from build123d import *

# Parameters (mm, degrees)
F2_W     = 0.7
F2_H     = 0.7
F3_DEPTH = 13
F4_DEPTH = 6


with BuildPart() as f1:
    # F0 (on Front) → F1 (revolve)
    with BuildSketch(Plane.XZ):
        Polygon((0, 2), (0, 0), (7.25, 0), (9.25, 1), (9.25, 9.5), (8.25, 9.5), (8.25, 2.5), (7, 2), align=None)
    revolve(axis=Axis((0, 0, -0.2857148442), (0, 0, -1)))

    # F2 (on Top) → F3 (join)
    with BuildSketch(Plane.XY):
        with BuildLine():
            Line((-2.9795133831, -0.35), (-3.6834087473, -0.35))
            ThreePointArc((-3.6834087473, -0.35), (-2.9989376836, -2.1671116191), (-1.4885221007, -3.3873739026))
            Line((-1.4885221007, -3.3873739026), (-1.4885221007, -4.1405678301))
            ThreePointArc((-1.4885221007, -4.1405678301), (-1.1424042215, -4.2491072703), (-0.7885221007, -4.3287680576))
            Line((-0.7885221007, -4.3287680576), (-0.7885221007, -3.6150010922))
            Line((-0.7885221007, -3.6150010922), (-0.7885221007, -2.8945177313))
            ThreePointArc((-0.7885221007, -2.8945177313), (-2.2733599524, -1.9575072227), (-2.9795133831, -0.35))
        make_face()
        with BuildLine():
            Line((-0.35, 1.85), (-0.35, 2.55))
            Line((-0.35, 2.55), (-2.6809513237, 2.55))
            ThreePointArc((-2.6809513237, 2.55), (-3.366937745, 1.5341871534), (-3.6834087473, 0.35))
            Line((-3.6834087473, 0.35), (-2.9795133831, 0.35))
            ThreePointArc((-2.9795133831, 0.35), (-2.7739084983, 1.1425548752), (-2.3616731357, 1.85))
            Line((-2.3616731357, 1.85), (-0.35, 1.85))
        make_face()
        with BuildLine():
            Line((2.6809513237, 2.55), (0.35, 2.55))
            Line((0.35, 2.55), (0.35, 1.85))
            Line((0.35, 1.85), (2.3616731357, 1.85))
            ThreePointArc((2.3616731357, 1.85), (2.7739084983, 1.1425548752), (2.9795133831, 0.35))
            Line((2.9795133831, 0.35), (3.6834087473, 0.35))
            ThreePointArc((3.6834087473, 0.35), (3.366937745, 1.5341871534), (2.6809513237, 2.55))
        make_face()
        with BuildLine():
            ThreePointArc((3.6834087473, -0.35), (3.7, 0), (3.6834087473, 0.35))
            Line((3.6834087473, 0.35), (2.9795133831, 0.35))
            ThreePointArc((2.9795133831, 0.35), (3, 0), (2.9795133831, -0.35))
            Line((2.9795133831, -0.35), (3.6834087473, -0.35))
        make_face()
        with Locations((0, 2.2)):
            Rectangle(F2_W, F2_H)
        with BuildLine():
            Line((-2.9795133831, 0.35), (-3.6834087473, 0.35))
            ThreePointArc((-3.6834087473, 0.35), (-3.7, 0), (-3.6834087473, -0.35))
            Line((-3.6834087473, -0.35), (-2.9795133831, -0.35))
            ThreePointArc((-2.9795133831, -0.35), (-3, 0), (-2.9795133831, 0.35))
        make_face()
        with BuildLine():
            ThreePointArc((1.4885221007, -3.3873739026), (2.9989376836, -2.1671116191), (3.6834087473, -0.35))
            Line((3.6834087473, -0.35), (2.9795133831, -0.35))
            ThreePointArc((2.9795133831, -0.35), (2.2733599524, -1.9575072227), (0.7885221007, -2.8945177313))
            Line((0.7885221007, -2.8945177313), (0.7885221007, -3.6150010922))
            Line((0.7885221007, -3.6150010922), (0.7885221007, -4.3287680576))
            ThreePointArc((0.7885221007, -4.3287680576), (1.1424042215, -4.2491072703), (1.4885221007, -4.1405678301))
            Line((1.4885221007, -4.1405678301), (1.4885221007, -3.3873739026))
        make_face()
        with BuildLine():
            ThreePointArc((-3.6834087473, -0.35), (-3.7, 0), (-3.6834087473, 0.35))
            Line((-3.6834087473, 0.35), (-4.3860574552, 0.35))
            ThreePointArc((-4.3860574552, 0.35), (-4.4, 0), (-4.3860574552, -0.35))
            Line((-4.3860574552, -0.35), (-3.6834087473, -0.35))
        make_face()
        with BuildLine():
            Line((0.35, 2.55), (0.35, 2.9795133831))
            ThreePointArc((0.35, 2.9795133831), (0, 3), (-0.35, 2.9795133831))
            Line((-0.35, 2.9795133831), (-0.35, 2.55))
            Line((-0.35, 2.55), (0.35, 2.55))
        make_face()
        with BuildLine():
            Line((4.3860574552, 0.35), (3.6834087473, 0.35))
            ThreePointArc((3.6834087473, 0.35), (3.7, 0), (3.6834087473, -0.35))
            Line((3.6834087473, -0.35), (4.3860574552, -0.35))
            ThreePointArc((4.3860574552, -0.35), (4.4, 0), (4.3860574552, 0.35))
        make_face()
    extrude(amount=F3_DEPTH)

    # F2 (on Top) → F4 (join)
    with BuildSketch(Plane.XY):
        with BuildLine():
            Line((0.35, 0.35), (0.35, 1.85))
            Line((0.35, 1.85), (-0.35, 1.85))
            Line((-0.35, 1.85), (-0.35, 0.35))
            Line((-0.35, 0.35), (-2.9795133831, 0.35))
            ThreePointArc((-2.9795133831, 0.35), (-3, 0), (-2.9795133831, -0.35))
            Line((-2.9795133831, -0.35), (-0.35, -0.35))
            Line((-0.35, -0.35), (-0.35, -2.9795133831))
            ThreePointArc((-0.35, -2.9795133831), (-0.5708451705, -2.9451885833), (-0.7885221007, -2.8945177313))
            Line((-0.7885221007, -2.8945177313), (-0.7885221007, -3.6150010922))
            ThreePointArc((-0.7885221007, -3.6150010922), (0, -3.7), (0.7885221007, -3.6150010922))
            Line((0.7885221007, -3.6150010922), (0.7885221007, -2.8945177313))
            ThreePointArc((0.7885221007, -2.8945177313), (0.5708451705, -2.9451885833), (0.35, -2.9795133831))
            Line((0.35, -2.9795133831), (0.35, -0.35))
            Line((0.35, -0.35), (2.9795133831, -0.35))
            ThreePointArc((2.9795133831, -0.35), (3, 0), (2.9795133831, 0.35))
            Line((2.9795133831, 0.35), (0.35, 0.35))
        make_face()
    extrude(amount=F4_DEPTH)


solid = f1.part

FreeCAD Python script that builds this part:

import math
import FreeCAD as App
import Part
import Sketcher

doc = App.newDocument("Part")
params = doc.addObject("Spreadsheet::Sheet", "Params")
for row, (alias, value) in enumerate([
    ("sketch1_width", "1 mm"),
    ("sketch1_width2", "7 mm"),
    ("sketch1_height", "2 mm"),
    ("sketch1_height2", "8.5 mm"),
    ("sketch1_width3", "7.25 mm"),
    ("revolution_angle", "360 deg"),
    ("sketch2_radius", "3 mm"),
    ("sketch2_radius2", "3.7 mm"),
    ("sketch2_radius3", "4.4 mm"),
    ("pad1_length", "13 mm"),
    ("sketch3_radius", "3 mm"),
    ("sketch3_radius2", "3.7 mm"),
    ("sketch3_width", "0.7 mm"),
    ("sketch3_height", "1.5 mm"),
    ("pad2_length", "6 mm"),
], start=1):
    params.set(f"A{row}", alias)
    params.set(f"B{row}", "=" + value)
    params.setAlias(f"B{row}", alias)

body = doc.addObject("PartDesign::Body", "Body")

sketch1 = body.newObject("Sketcher::SketchObject", "Sketch")
sketch1.AttachmentSupport = (doc.getObject("XZ_Plane"), [""])
sketch1.MapMode = "FlatFace"
sketch1.addGeometry([
    Part.LineSegment(App.Vector(0, 2, 0), App.Vector(0, 0, 0)),
    Part.LineSegment(App.Vector(0, 0, 0), App.Vector(7.2, 0, 0)),
    Part.LineSegment(App.Vector(7.2, 0, 0), App.Vector(9.2, 1, 0)),
    Part.LineSegment(App.Vector(9.2, 1, 0), App.Vector(9.2, 9.5, 0)),
    Part.LineSegment(App.Vector(9.2, 9.5, 0), App.Vector(8.2, 9.5, 0)),
    Part.LineSegment(App.Vector(8.2, 9.5, 0), App.Vector(8.2, 2.5, 0)),
    Part.LineSegment(App.Vector(8.2, 2.5, 0), App.Vector(7, 2, 0)),
    Part.LineSegment(App.Vector(7, 2, 0), App.Vector(0, 2, 0)),
], False)
sketch1.addConstraint([
    Sketcher.Constraint("Coincident", 0, 2, 1, 1),
    Sketcher.Constraint("Coincident", 1, 2, 2, 1),
    Sketcher.Constraint("Coincident", 2, 2, 3, 1),
    Sketcher.Constraint("Coincident", 3, 2, 4, 1),
    Sketcher.Constraint("Coincident", 4, 2, 5, 1),
    Sketcher.Constraint("Coincident", 5, 2, 6, 1),
    Sketcher.Constraint("Coincident", 6, 2, 7, 1),
    Sketcher.Constraint("Coincident", 7, 2, 0, 1),
    Sketcher.Constraint("Vertical", 0),
    Sketcher.Constraint("Horizontal", 1),
    Sketcher.Constraint("Vertical", 3),
    Sketcher.Constraint("Horizontal", 4),
    Sketcher.Constraint("Vertical", 5),
    Sketcher.Constraint("Horizontal", 7),
    Sketcher.Constraint("Coincident", 0, 2, -1, 1),
    Sketcher.Constraint("Equal", 7, 5),
    Sketcher.Constraint("DistanceX", 4, 2, 4, 1, 1.0),
    Sketcher.Constraint("DistanceX", 7, 2, 7, 1, 7.0),
    Sketcher.Constraint("DistanceY", 0, 2, 0, 1, 2.0),
    Sketcher.Constraint("DistanceY", 3, 1, 3, 2, 8.5),
    Sketcher.Constraint("DistanceY", -1, 1, 2, 2, 1.0),
    Sketcher.Constraint("DistanceX", 1, 2, 2, 2, 2.0),
    Sketcher.Constraint("DistanceX", 1, 1, 1, 2, 7.25),
])
sketch1.setExpression("Constraints[16]", "Params.sketch1_width")
sketch1.setExpression("Constraints[17]", "Params.sketch1_width2")
sketch1.setExpression("Constraints[18]", "Params.sketch1_height")
sketch1.setExpression("Constraints[19]", "Params.sketch1_height2")
sketch1.setExpression("Constraints[22]", "Params.sketch1_width3")
revolution = body.newObject("PartDesign::Revolution", "Revolution")
revolution.Profile = sketch1
revolution.ReferenceAxis = (sketch1, ["V_Axis"])
revolution.setExpression("Angle", "Params.revolution_angle")

sketch2 = body.newObject("Sketcher::SketchObject", "Sketch001")
sketch2.AttachmentSupport = (doc.getObject("XY_Plane"), [""])
sketch2.MapMode = "FlatFace"
sketch2.addGeometry([
    Part.ArcOfCircle(Part.Circle(App.Vector(0, 0, 0), App.Vector(0, 0, 1), 3.7), math.radians(-175), math.radians(-114)),
    Part.LineSegment(App.Vector(-1.49, -3.39, 0), App.Vector(-1.49, -4.14, 0)),
    Part.ArcOfCircle(Part.Circle(App.Vector(0, 0, 0), App.Vector(0, 0, 1), 4.4), math.radians(-109.77), math.radians(-100.32)),
    Part.LineSegment(App.Vector(-0.79, -4.33, 0), App.Vector(-0.79, -2.89, 0)),
    Part.ArcOfCircle(Part.Circle(App.Vector(0, 0, 0), App.Vector(0, 0, 1), 3), math.radians(-173), math.radians(-105)),
    Part.ArcOfCircle(Part.Circle(App.Vector(0, 0, 0), App.Vector(0, 0, 1), 3), math.radians(173.3), math.radians(186.7)),
    Part.ArcOfCircle(Part.Circle(App.Vector(0, 0, 0), App.Vector(0, 0, 1), 3), math.radians(142), math.radians(173)),
    Part.LineSegment(App.Vector(-2.36, 1.85, 0), App.Vector(2.36, 1.85, 0)),
    Part.ArcOfCircle(Part.Circle(App.Vector(0, 0, 0), App.Vector(0, 0, 1), 3), math.radians(7), math.radians(38)),
    Part.ArcOfCircle(Part.Circle(App.Vector(0, 0, 0), App.Vector(0, 0, 1), 3), math.radians(-6.7), math.radians(6.7)),
    Part.ArcOfCircle(Part.Circle(App.Vector(0, 0, 0), App.Vector(0, 0, 1), 3), math.radians(-75), math.radians(-7)),
    Part.LineSegment(App.Vector(0.79, -2.89, 0), App.Vector(0.79, -4.33, 0)),
    Part.ArcOfCircle(Part.Circle(App.Vector(0, 0, 0), App.Vector(0, 0, 1), 4.4), math.radians(-79.68), math.radians(-70.23)),
    Part.LineSegment(App.Vector(1.49, -4.14, 0), App.Vector(1.49, -3.39, 0)),
    Part.ArcOfCircle(Part.Circle(App.Vector(0, 0, 0), App.Vector(0, 0, 1), 3.7), math.radians(-66), math.radians(-5)),
    Part.LineSegment(App.Vector(3.68, -0.35, 0), App.Vector(4.39, -0.35, 0)),
    Part.ArcOfCircle(Part.Circle(App.Vector(0, 0, 0), App.Vector(0, 0, 1), 4.4), math.radians(-4.56), math.radians(4.56)),
    Part.LineSegment(App.Vector(4.39, 0.35, 0), App.Vector(3.68, 0.35, 0)),
    Part.ArcOfCircle(Part.Circle(App.Vector(0, 0, 0), App.Vector(0, 0, 1), 3.7), math.radians(5), math.radians(44)),
    Part.LineSegment(App.Vector(2.68, 2.55, 0), App.Vector(0.35, 2.55, 0)),
    Part.LineSegment(App.Vector(0.35, 2.55, 0), App.Vector(0.35, 2.98, 0)),
    Part.ArcOfCircle(Part.Circle(App.Vector(0, 0, 0), App.Vector(0, 0, 1), 3), math.radians(83.3), math.radians(96.7)),
    Part.LineSegment(App.Vector(-0.35, 2.98, 0), App.Vector(-0.35, 2.55, 0)),
    Part.LineSegment(App.Vector(-0.35, 2.55, 0), App.Vector(-2.68, 2.55, 0)),
    Part.ArcOfCircle(Part.Circle(App.Vector(0, 0, 0), App.Vector(0, 0, 1), 3.7), math.radians(136), math.radians(175)),
    Part.LineSegment(App.Vector(-3.68, 0.35, 0), App.Vector(-4.39, 0.35, 0)),
    Part.ArcOfCircle(Part.Circle(App.Vector(0, 0, 0), App.Vector(0, 0, 1), 4.4), math.radians(175.44), math.radians(184.56)),
    Part.LineSegment(App.Vector(-4.39, -0.35, 0), App.Vector(-3.68, -0.35, 0)),
], False)
sketch2.addConstraint([
    Sketcher.Constraint("Coincident", 0, 2, 1, 1),
    Sketcher.Constraint("Coincident", 1, 2, 2, 1),
    Sketcher.Constraint("Coincident", 2, 2, 3, 1),
    Sketcher.Constraint("Coincident", 3, 2, 4, 2),
    Sketcher.Constraint("Tangent", 4, 1, 5, 2),
    Sketcher.Constraint("Tangent", 5, 1, 6, 2),
    Sketcher.Constraint("Coincident", 6, 1, 7, 1),
    Sketcher.Constraint("Coincident", 7, 2, 8, 2),
    Sketcher.Constraint("Tangent", 8, 1, 9, 2),
    Sketcher.Constraint("Tangent", 9, 1, 10, 2),
    Sketcher.Constraint("Coincident", 10, 1, 11, 1),
    Sketcher.Constraint("Coincident", 11, 2, 12, 1),
    Sketcher.Constraint("Coincident", 12, 2, 13, 1),
    Sketcher.Constraint("Coincident", 13, 2, 14, 1),
    Sketcher.Constraint("Coincident", 14, 2, 15, 1),
    Sketcher.Constraint("Coincident", 15, 2, 16, 1),
    Sketcher.Constraint("Coincident", 16, 2, 17, 1),
    Sketcher.Constraint("Coincident", 17, 2, 18, 1),
    Sketcher.Constraint("Coincident", 18, 2, 19, 1),
    Sketcher.Constraint("Coincident", 19, 2, 20, 1),
    Sketcher.Constraint("Coincident", 20, 2, 21, 1),
    Sketcher.Constraint("Coincident", 21, 2, 22, 1),
    Sketcher.Constraint("Coincident", 22, 2, 23, 1),
    Sketcher.Constraint("Coincident", 23, 2, 24, 1),
    Sketcher.Constraint("Coincident", 24, 2, 25, 1),
    Sketcher.Constraint("Coincident", 25, 2, 26, 1),
    Sketcher.Constraint("Coincident", 26, 2, 27, 1),
    Sketcher.Constraint("Coincident", 27, 2, 0, 1),
    Sketcher.Constraint("Vertical", 1),
    Sketcher.Constraint("Vertical", 3),
    Sketcher.Constraint("Horizontal", 7),
    Sketcher.Constraint("Vertical", 11),
    Sketcher.Constraint("Vertical", 13),
    Sketcher.Constraint("Horizontal", 15),
    Sketcher.Constraint("Horizontal", 17),
    Sketcher.Constraint("Horizontal", 19),
    Sketcher.Constraint("Vertical", 20),
    Sketcher.Constraint("Vertical", 22),
    Sketcher.Constraint("Horizontal", 23),
    Sketcher.Constraint("Horizontal", 25),
    Sketcher.Constraint("Horizontal", 27),
    Sketcher.Constraint("Coincident", 0, 3, -1, 1),
    Sketcher.Constraint("Coincident", 2, 3, -1, 1),
    Sketcher.Constraint("Coincident", 4, 3, -1, 1),
    Sketcher.Constraint("Coincident", 6, 3, -1, 1),
    Sketcher.Constraint("Coincident", 8, 3, -1, 1),
    Sketcher.Constraint("Coincident", 10, 3, -1, 1),
    Sketcher.Constraint("Coincident", 12, 3, -1, 1),
    Sketcher.Constraint("Coincident", 14, 3, -1, 1),
    Sketcher.Constraint("Coincident", 16, 3, -1, 1),
    Sketcher.Constraint("Coincident", 18, 3, -1, 1),
    Sketcher.Constraint("Coincident", 21, 3, -1, 1),
    Sketcher.Constraint("Coincident", 24, 3, -1, 1),
    Sketcher.Constraint("Coincident", 26, 3, -1, 1),
    Sketcher.Constraint("Equal", 6, 8),
    Sketcher.Constraint("Equal", 2, 12),
    Sketcher.Constraint("Equal", 0, 14),
    Sketcher.Constraint("Equal", 12, 16),
    Sketcher.Constraint("Equal", 14, 18),
    Sketcher.Constraint("Equal", 10, 21),
    Sketcher.Constraint("Equal", 18, 24),
    Sketcher.Constraint("Equal", 16, 26),
    Sketcher.Constraint("Symmetric", 19, 2, 22, 2, -2),
    Sketcher.Constraint("Horizontal", 5, 1, 8, 1),
    Sketcher.Constraint("Horizontal", 4, 1, 9, 1),
    Sketcher.Constraint("Horizontal", 3, 2, 10, 1),
    Sketcher.Constraint("Horizontal", 1, 2, 12, 2),
    Sketcher.Constraint("Horizontal", 9, 1, 14, 2),
    Sketcher.Constraint("Horizontal", 8, 1, 16, 2),
    Sketcher.Constraint("Horizontal", 17, 2, 24, 2),
    Sketcher.Constraint("Horizontal", 15, 2, 26, 2),
    Sketcher.Constraint("Vertical", 4, 1, 5, 1),
    Sketcher.Constraint("Radius", 4, 3.0),
    Sketcher.Constraint("Radius", 0, 3.7),
    Sketcher.Constraint("Radius", 2, 4.4),
    Sketcher.Constraint("DistanceX", 1, 2, 2, 2, 0.7),
    Sketcher.Constraint("DistanceY", 4, 1, 5, 1, 0.7),
    Sketcher.Constraint("DistanceY", 5, 1, 6, 1, 1.5),
    Sketcher.Constraint("DistanceY", 7, 2, 18, 2, 0.7),
    Sketcher.Constraint("DistanceX", 21, 2, 20, 2, 0.7),
    Sketcher.Constraint("DistanceY", 3, 1, 3, 2, 1.43425),
])
sketch2.setExpression("Constraints[72]", "Params.sketch2_radius")
sketch2.setExpression("Constraints[73]", "Params.sketch2_radius2")
sketch2.setExpression("Constraints[74]", "Params.sketch2_radius3")
pad1 = body.newObject("PartDesign::Pad", "Pad")
pad1.Profile = sketch2
pad1.setExpression("Length", "Params.pad1_length")

sketch3 = body.newObject("Sketcher::SketchObject", "Sketch002")
sketch3.AttachmentSupport = (doc.getObject("XY_Plane"), [""])
sketch3.MapMode = "FlatFace"
sketch3.addGeometry([
    Part.LineSegment(App.Vector(0.35, 0.35, 0), App.Vector(0.35, 1.85, 0)),
    Part.LineSegment(App.Vector(0.35, 1.85, 0), App.Vector(-0.35, 1.85, 0)),
    Part.LineSegment(App.Vector(-0.35, 1.85, 0), App.Vector(-0.35, 0.35, 0)),
    Part.LineSegment(App.Vector(-0.35, 0.35, 0), App.Vector(-2.98, 0.35, 0)),
    Part.ArcOfCircle(Part.Circle(App.Vector(0, 0, 0), App.Vector(0, 0, 1), 3), math.radians(173.3), math.radians(186.7)),
    Part.LineSegment(App.Vector(-2.98, -0.35, 0), App.Vector(-0.35, -0.35, 0)),
    Part.LineSegment(App.Vector(-0.35, -0.35, 0), App.Vector(-0.35, -2.98, 0)),
    Part.ArcOfCircle(Part.Circle(App.Vector(0, 0, 0), App.Vector(0, 0, 1), 3), math.radians(-105.24), math.radians(-96.7)),
    Part.LineSegment(App.Vector(-0.79, -2.89, 0), App.Vector(-0.79, -3.62, 0)),
    Part.ArcOfCircle(Part.Circle(App.Vector(0, 0, 0), App.Vector(0, 0, 1), 3.7), math.radians(-102), math.radians(-78)),
    Part.LineSegment(App.Vector(0.79, -3.62, 0), App.Vector(0.79, -2.89, 0)),
    Part.ArcOfCircle(Part.Circle(App.Vector(0, 0, 0), App.Vector(0, 0, 1), 3), math.radians(-83.3), math.radians(-74.76)),
    Part.LineSegment(App.Vector(0.35, -2.98, 0), App.Vector(0.35, -0.35, 0)),
    Part.LineSegment(App.Vector(0.35, -0.35, 0), App.Vector(2.98, -0.35, 0)),
    Part.ArcOfCircle(Part.Circle(App.Vector(0, 0, 0), App.Vector(0, 0, 1), 3), math.radians(-6.7), math.radians(6.7)),
    Part.LineSegment(App.Vector(2.98, 0.35, 0), App.Vector(0.35, 0.35, 0)),
], False)
sketch3.addConstraint([
    Sketcher.Constraint("Coincident", 0, 2, 1, 1),
    Sketcher.Constraint("Coincident", 1, 2, 2, 1),
    Sketcher.Constraint("Coincident", 2, 2, 3, 1),
    Sketcher.Constraint("Coincident", 3, 2, 4, 1),
    Sketcher.Constraint("Coincident", 4, 2, 5, 1),
    Sketcher.Constraint("Coincident", 5, 2, 6, 1),
    Sketcher.Constraint("Coincident", 6, 2, 7, 2),
    Sketcher.Constraint("Coincident", 7, 1, 8, 1),
    Sketcher.Constraint("Coincident", 8, 2, 9, 1),
    Sketcher.Constraint("Coincident", 9, 2, 10, 1),
    Sketcher.Constraint("Coincident", 10, 2, 11, 2),
    Sketcher.Constraint("Coincident", 11, 1, 12, 1),
    Sketcher.Constraint("Coincident", 12, 2, 13, 1),
    Sketcher.Constraint("Coincident", 13, 2, 14, 1),
    Sketcher.Constraint("Coincident", 14, 2, 15, 1),
    Sketcher.Constraint("Coincident", 15, 2, 0, 1),
    Sketcher.Constraint("Vertical", 0),
    Sketcher.Constraint("Horizontal", 1),
    Sketcher.Constraint("Vertical", 2),
    Sketcher.Constraint("Horizontal", 3),
    Sketcher.Constraint("Horizontal", 5),
    Sketcher.Constraint("Vertical", 6),
    Sketcher.Constraint("Vertical", 8),
    Sketcher.Constraint("Vertical", 10),
    Sketcher.Constraint("Vertical", 12),
    Sketcher.Constraint("Horizontal", 13),
    Sketcher.Constraint("Horizontal", 15),
    Sketcher.Constraint("Coincident", 4, 3, -1, 1),
    Sketcher.Constraint("Coincident", 7, 3, -1, 1),
    Sketcher.Constraint("Coincident", 9, 3, -1, 1),
    Sketcher.Constraint("Coincident", 11, 3, -1, 1),
    Sketcher.Constraint("Coincident", 14, 3, -1, 1),
    Sketcher.Constraint("Equal", 4, 7),
    Sketcher.Constraint("Equal", 7, 11),
    Sketcher.Constraint("Equal", 11, 14),
    Sketcher.Constraint("Symmetric", 2, 2, 12, 2, -1, 1),
    Sketcher.Constraint("Symmetric", 5, 2, 15, 2, -1, 1),
    Sketcher.Constraint("Symmetric", 5, 2, 12, 2, -2),
    Sketcher.Constraint("Horizontal", 8, 2, 9, 2),
    Sketcher.Constraint("Equal", 15, 6),
    Sketcher.Constraint("Radius", 4, 3.0),
    Sketcher.Constraint("Radius", 9, 3.7),
    Sketcher.Constraint("DistanceX", 1, 2, 1, 1, 0.7),
    Sketcher.Constraint("DistanceY", 0, 1, 0, 2, 1.5),
    Sketcher.Constraint("DistanceY", 8, 2, -1, 1, 3.615001),
])
sketch3.setExpression("Constraints[40]", "Params.sketch3_radius")
sketch3.setExpression("Constraints[41]", "Params.sketch3_radius2")
sketch3.setExpression("Constraints[42]", "Params.sketch3_width")
sketch3.setExpression("Constraints[43]", "Params.sketch3_height")
pad2 = body.newObject("PartDesign::Pad", "Pad001")
pad2.Profile = sketch3
pad2.setExpression("Length", "Params.pad2_length")

doc.recompute()
